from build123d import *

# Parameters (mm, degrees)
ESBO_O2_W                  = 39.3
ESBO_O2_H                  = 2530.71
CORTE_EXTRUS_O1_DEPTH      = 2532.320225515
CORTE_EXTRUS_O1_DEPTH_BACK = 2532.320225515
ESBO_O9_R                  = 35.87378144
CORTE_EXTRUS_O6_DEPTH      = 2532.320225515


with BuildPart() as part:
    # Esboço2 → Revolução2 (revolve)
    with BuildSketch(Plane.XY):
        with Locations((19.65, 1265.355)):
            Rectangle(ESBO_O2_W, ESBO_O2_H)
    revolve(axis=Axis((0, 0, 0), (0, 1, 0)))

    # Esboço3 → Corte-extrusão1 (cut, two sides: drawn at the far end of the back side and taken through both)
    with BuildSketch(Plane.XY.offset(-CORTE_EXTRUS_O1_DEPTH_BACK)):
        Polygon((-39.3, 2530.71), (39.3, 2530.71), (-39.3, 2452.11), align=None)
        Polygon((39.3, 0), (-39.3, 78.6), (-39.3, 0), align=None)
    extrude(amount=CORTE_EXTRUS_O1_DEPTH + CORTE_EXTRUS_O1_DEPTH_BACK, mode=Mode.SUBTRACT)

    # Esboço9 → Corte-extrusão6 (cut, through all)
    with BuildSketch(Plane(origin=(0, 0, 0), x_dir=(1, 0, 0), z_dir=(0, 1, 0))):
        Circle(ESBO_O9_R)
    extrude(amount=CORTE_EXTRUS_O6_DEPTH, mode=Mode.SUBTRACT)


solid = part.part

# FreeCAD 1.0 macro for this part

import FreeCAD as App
import Part
import Sketcher


def add_polygon(sketch, points):
    """Adds a closed chain of lines whose ends are joined by coincident constraints."""
    first, n = sketch.GeometryCount, len(points)
    for a, b in zip(points, points[1:] + points[:1]):
        sketch.addGeometry(Part.LineSegment(App.Vector(*a, 0), App.Vector(*b, 0)), False)
    for i in range(n):
        sketch.addConstraint(Sketcher.Constraint("Coincident", first + i, 2, first + (i + 1) % n, 1))

doc = App.newDocument("Part")
body = doc.addObject("PartDesign::Body", "Body")

# Sketch on XY plane
sketch1 = body.newObject("Sketcher::SketchObject", "Sketch")
sketch1.AttachmentSupport = (doc.getObject("XY_Plane"), [""])
sketch1.MapMode = "FlatFace"
add_polygon(sketch1, [(0, 2531), (0, 0), (39, 0), (39, 2531)])  # lines 0-3
sketch1.addConstraint([
    Sketcher.Constraint("Vertical", 0),
    Sketcher.Constraint("Horizontal", 1),
    Sketcher.Constraint("Vertical", 2),
    Sketcher.Constraint("Horizontal", 3),
    Sketcher.Constraint("Coincident", 0, 2, -1, 1),
    Sketcher.Constraint("DistanceX", 1, 1, 1, 2, 39.3),
    Sketcher.Constraint("DistanceY", 0, 2, 0, 1, 2530.71),
])
revolution = body.newObject("PartDesign::Revolution", "Revolution")
revolution.Profile = sketch1
revolution.ReferenceAxis = (sketch1, ["V_Axis"])
revolution.Angle = 360

# Sketch on XY plane
sketch2 = body.newObject("Sketcher::SketchObject", "Sketch001")
sketch2.AttachmentSupport = (doc.getObject("XY_Plane"), [""])
sketch2.MapMode = "FlatFace"
add_polygon(sketch2, [(39, 2531), (-39, 2531), (-39, 2452)])  # lines 0-2
add_polygon(sketch2, [(39, 0), (-39, 79), (-39, 0)])  # lines 3-5
sketch2.addConstraint([
    Sketcher.Constraint("Horizontal", 0),
    Sketcher.Constraint("Vertical", 1),
    Sketcher.Constraint("Vertical", 4),
    Sketcher.Constraint("Horizontal", 5),
    Sketcher.Constraint("Symmetric", 4, 2, 5, 2, -1, 1),
    Sketcher.Constraint("Perpendicular", 2, 3),
    Sketcher.Constraint("Vertical", 1, 2, 3, 2),
    Sketcher.Constraint("Vertical", 2, 2, 5, 2),
    Sketcher.Constraint("Equal", 5, 1),
    Sketcher.Constraint("DistanceX", 0, 2, 0, 1, 78.6),
    Sketcher.Constraint("DistanceY", -1, 1, 0, 2, 2530.71),
])
pocket1 = body.newObject("PartDesign::Pocket", "Pocket")
pocket1.Profile = sketch2
pocket1.Type = "ThroughAll"
pocket1.Midplane = True

# Sketch on XZ plane
sketch3 = body.newObject("Sketcher::SketchObject", "Sketch002")
sketch3.AttachmentSupport = (doc.getObject("XZ_Plane"), [""])
sketch3.MapMode = "FlatFace"
sketch3.addGeometry(Part.Circle(App.Vector(0, 0, 0), App.Vector(0, 0, 1), 36), False)
sketch3.addConstraint([
    Sketcher.Constraint("Coincident", 0, 3, -1, 1),
    Sketcher.Constraint("Diameter", 0, 71.747563),
])
pocket2 = body.newObject("PartDesign::Pocket", "Pocket001")
pocket2.Profile = sketch3
pocket2.Type = "ThroughAll"

doc.recompute()
